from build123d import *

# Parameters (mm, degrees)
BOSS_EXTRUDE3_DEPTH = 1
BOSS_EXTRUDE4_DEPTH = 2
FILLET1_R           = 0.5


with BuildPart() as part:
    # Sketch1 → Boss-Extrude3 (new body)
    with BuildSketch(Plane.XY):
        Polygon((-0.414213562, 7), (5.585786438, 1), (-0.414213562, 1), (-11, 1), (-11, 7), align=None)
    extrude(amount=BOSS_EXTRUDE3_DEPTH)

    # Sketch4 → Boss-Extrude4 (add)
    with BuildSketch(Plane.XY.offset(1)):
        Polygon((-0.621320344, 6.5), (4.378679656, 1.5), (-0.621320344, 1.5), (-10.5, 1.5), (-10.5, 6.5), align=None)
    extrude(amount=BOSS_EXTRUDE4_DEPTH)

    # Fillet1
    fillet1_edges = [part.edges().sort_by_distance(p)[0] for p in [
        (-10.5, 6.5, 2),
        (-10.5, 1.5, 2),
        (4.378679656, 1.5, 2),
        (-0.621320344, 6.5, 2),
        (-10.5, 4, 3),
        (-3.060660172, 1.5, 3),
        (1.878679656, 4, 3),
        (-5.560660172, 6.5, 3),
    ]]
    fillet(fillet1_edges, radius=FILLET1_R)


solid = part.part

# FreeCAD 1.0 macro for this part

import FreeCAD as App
import Part
import Sketcher
from FreeCAD import Vector
Q = App.Units.Quantity


def edges_at(feature, points):
    """Names of the edges that pass closest to the given points."""
    edges = feature.Shape.Edges
    near = lambda p: min(range(len(edges)), key=lambda i: edges[i].distToShape(Part.Vertex(*p))[0])
    return sorted({f"Edge{near(p) + 1}" for p in points})

doc = App.newDocument("Part")
body = doc.addObject("PartDesign::Body", "Body")

sketch1 = body.newObject("Sketcher::SketchObject", "Sketch")
sketch1.AttachmentSupport = (doc.getObject("XY_Plane"), [""])
sketch1.MapMode = "FlatFace"
sketch1.addGeometry([
    Part.LineSegment(Vector(5.585786, 1, 0), Vector(-0.414214, 7, 0)),
    Part.LineSegment(Vector(-0.414214, 7, 0), Vector(-11, 7, 0)),
    Part.LineSegment(Vector(-11, 7, 0), Vector(-11, 1, 0)),
    Part.LineSegment(Vector(-11, 1, 0), Vector(5.585786, 1, 0)),
], False)
sketch1.addConstraint([
    Sketcher.Constraint("Coincident", 0, 2, 1, 1),
    Sketcher.Constraint("Coincident", 1, 2, 2, 1),
    Sketcher.Constraint("Coincident", 2, 2, 3, 1),
    Sketcher.Constraint("Coincident", 3, 2, 0, 1),
    Sketcher.Constraint("Horizontal", 1),
    Sketcher.Constraint("Vertical", 2),
    Sketcher.Constraint("Horizontal", 3),
    Sketcher.Constraint("DistanceY", 2, 2, 2, 1, 6.0),
    Sketcher.Constraint("Angle", 0, Q("135 deg")),
    Sketcher.Constraint("DistanceY", -1, 1, 0, 2, 7.0),
    Sketcher.Constraint("DistanceX", 1, 2, -1, 1, 11.0),
    Sketcher.Constraint("DistanceX", 1, 2, 1, 1, 10.585786),
])
pad1 = body.newObject("PartDesign::Pad", "Pad")
pad1.Profile = sketch1
pad1.Length = 1

sketch2 = body.newObject("Sketcher::SketchObject", "Sketch001")
sketch2.AttachmentSupport = (doc.getObject("XY_Plane"), [""])
sketch2.MapMode = "FlatFace"
sketch2.AttachmentOffset = App.Placement(Vector(0, 0, 1), App.Rotation())
sketch2.addGeometry([
    Part.LineSegment(Vector(4.37868, 1.5, 0), Vector(-0.62132, 6.5, 0)),
    Part.LineSegment(Vector(-0.62132, 6.5, 0), Vector(-10.5, 6.5, 0)),
    Part.LineSegment(Vector(-10.5, 6.5, 0), Vector(-10.5, 1.5, 0)),
    Part.LineSegment(Vector(-10.5, 1.5, 0), Vector(4.37868, 1.5, 0)),
], False)
sketch2.addConstraint([
    Sketcher.Constraint("Coincident", 0, 2, 1, 1),
    Sketcher.Constraint("Coincident", 1, 2, 2, 1),
    Sketcher.Constraint("Coincident", 2, 2, 3, 1),
    Sketcher.Constraint("Coincident", 3, 2, 0, 1),
    Sketcher.Constraint("Horizontal", 1),
    Sketcher.Constraint("Vertical", 2),
    Sketcher.Constraint("Horizontal", 3),
    Sketcher.Constraint("DistanceY", 2, 2, 2, 1, 5.0),
    Sketcher.Constraint("Angle", 0, Q("135 deg")),
    Sketcher.Constraint("DistanceY", -1, 1, 0, 2, 6.5),
    Sketcher.Constraint("DistanceX", 1, 2, -1, 1, 10.5),
    Sketcher.Constraint("DistanceX", 1, 2, 1, 1, 9.87868),
])
pad2 = body.newObject("PartDesign::Pad", "Pad001")
pad2.Profile = sketch2
pad2.Length = 2
doc.recompute()

fillet = body.newObject("PartDesign::Fillet", "Fillet")
fillet.Base = (pad2, edges_at(pad2, [
    (-10.5, 6.5, 2),
    (-10.5, 1.5, 2),
    (4.379, 1.5, 2),
    (-0.621, 6.5, 2),
    (-10.5, 4, 3),
    (-3.061, 1.5, 3),
    (1.879, 4, 3),
    (-5.561, 6.5, 3),
]))
fillet.Radius = 0.5

doc.recompute()
